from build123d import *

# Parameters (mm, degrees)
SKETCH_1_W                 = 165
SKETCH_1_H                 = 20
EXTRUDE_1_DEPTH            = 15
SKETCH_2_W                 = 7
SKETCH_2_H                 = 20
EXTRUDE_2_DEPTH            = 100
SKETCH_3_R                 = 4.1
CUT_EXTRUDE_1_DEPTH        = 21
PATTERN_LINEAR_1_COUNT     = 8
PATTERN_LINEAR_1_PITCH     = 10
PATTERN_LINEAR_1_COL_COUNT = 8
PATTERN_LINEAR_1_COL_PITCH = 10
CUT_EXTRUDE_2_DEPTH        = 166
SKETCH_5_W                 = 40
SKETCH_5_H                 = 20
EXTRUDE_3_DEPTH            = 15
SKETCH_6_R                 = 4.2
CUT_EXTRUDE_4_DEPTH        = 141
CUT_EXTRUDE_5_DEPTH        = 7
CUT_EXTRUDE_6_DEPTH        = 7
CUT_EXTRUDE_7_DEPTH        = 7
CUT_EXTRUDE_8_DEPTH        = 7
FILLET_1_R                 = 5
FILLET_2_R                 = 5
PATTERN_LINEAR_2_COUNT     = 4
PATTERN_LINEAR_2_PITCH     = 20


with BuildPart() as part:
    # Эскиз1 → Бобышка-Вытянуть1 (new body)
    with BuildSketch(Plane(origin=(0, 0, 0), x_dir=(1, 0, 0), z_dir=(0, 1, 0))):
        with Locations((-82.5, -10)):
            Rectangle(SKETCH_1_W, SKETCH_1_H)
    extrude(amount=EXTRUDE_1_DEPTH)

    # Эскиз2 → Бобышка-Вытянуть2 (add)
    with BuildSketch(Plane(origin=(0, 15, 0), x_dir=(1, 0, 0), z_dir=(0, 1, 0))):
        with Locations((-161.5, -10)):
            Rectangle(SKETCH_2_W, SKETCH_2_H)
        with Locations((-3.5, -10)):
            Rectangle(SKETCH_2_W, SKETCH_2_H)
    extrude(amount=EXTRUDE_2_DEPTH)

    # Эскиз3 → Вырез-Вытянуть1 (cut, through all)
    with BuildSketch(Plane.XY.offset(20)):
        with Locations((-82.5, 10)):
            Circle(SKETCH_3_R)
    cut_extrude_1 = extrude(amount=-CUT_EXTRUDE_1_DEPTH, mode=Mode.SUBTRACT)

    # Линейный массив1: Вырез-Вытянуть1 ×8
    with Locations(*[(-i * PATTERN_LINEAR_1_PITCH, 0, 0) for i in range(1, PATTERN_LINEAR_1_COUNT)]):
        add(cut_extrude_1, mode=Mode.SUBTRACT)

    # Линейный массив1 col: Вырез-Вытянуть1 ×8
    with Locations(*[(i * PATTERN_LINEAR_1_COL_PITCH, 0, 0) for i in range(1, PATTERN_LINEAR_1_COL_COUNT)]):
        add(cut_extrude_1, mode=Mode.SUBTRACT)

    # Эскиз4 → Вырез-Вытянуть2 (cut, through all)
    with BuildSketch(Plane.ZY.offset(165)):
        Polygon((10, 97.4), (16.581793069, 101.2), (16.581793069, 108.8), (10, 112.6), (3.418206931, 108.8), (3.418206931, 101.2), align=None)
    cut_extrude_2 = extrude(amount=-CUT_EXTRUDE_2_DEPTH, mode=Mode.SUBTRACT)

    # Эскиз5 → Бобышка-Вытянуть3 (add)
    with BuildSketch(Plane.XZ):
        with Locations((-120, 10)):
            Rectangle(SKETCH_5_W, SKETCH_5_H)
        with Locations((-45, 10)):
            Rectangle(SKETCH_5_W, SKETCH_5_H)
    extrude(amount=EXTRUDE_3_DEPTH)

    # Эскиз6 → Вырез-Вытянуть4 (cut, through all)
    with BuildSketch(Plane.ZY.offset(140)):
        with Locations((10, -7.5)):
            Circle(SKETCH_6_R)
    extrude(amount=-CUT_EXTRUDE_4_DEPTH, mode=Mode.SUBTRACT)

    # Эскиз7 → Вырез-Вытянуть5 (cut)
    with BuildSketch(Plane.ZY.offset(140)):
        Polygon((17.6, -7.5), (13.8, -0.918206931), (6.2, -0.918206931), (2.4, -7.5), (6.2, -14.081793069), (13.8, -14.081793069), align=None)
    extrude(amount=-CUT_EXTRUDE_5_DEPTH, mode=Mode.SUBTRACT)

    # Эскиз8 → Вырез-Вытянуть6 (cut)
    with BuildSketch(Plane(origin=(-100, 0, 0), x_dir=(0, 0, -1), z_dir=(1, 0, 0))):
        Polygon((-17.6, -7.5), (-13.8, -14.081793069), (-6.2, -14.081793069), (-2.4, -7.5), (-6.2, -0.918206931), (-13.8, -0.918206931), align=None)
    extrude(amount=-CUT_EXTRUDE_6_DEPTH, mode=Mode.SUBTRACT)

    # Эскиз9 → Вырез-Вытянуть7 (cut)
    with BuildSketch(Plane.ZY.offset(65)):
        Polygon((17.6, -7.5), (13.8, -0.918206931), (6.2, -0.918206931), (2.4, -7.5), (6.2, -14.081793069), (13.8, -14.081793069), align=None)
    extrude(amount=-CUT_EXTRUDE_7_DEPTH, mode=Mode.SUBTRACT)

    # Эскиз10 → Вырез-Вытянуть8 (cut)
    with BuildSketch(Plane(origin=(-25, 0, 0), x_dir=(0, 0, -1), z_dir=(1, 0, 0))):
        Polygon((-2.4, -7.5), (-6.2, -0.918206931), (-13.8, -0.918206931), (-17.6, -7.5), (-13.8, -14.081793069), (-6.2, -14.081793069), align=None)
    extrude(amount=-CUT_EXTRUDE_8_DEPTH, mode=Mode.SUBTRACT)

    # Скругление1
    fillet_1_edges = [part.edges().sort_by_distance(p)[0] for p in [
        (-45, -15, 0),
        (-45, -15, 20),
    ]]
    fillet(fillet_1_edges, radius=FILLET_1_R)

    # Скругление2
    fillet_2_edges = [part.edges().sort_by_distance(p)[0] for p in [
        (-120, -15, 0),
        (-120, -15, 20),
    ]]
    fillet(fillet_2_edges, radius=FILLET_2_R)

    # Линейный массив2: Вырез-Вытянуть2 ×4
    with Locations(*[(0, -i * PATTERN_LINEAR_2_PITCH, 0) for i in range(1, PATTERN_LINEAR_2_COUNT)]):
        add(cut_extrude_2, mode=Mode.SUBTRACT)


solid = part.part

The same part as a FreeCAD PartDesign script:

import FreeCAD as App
import Part
import Sketcher
Q = App.Units.Quantity


def edges_at(feature, points):
    """Names of the edges that pass closest to the given points."""
    edges = feature.Shape.Edges
    near = lambda p: min(range(len(edges)), key=lambda i: edges[i].distToShape(Part.Vertex(*p))[0])
    return sorted({f"Edge{near(p) + 1}" for p in points})

doc = App.newDocument("Part")
params = doc.addObject("Spreadsheet::Sheet", "Params")
for row, (alias, value) in enumerate([
    ("sketch1_width", "165 mm"),
    ("sketch1_height", "20 mm"),
    ("pad1_length", "15 mm"),
    ("sketch2_width", "7 mm"),
    ("sketch2_height", "20 mm"),
    ("pad2_length", "100 mm"),
    ("sketch3_diameter", "8.2 mm"),
    ("linearpattern_pitch", "10 mm"),
    ("linearpattern2_pitch", "10 mm"),
    ("sketch4_width", "7.6 mm"),
    ("sketch4_length", "7.6 mm"),
    ("sketch5_width", "40 mm"),
    ("sketch5_height", "20 mm"),
    ("pad3_length", "15 mm"),
    ("sketch6_diameter", "8.4 mm"),
    ("sketch7_height", "7.6 mm"),
    ("sketch7_length", "7.6 mm"),
    ("pocket4_length", "7 mm"),
    ("sketch8_height", "7.6 mm"),
    ("sketch8_length", "7.6 mm"),
    ("pocket5_length", "7 mm"),
    ("sketch9_height", "7.6 mm"),
    ("sketch9_length", "7.6 mm"),
    ("pocket6_length", "7 mm"),
    ("sketch10_height", "7.6 mm"),
    ("sketch10_length", "7.6 mm"),
    ("pocket7_length", "7 mm"),
    ("fillet_radius", "5 mm"),
    ("fillet2_radius", "5 mm"),
    ("linearpattern3_pitch", "20 mm"),
], start=1):
    params.set(f"A{row}", alias)
    params.set(f"B{row}", "=" + value)
    params.setAlias(f"B{row}", alias)

body = doc.addObject("PartDesign::Body", "Body")

sketch1 = body.newObject("Sketcher::SketchObject", "Sketch")
sketch1.AttachmentSupport = (doc.getObject("XZ_Plane"), [""])
sketch1.MapMode = "FlatFace"
sketch1.addGeometry(Part.LineSegment(App.Vector(-165, 0, 0), App.Vector(-165, 20, 0)), False)
sketch1.addGeometry(Part.LineSegment(App.Vector(-165, 20, 0), App.Vector(0, 20, 0)), False)
sketch1.addGeometry(Part.LineSegment(App.Vector(0, 20, 0), App.Vector(0, 0, 0)), False)
sketch1.addGeometry(Part.LineSegment(App.Vector(0, 0, 0), App.Vector(-165, 0, 0)), False)
sketch1.addConstraint(Sketcher.Constraint("Coincident", 0, 2, 1, 1))
sketch1.addConstraint(Sketcher.Constraint("Coincident", 1, 2, 2, 1))
sketch1.addConstraint(Sketcher.Constraint("Coincident", 2, 2, 3, 1))
sketch1.addConstraint(Sketcher.Constraint("Coincident", 3, 2, 0, 1))
sketch1.addConstraint(Sketcher.Constraint("Vertical", 0))
sketch1.addConstraint(Sketcher.Constraint("Horizontal", 1))
sketch1.addConstraint(Sketcher.Constraint("Vertical", 2))
sketch1.addConstraint(Sketcher.Constraint("Horizontal", 3))
sketch1.addConstraint(Sketcher.Constraint("Coincident", 2, 2, -1, 1))
sketch1.addConstraint(Sketcher.Constraint("DistanceX", 1, 1, 1, 2, Q("165 mm")))
sketch1.addConstraint(Sketcher.Constraint("DistanceY", 0, 1, 0, 2, Q("20 mm")))
sketch1.setExpression("Constraints[9]", "Params.sketch1_width")
sketch1.setExpression("Constraints[10]", "Params.sketch1_height")
pad1 = body.newObject("PartDesign::Pad", "Pad")
pad1.Profile = sketch1
pad1.setExpression("Length", "Params.pad1_length")
pad1.Reversed = True

sketch2 = body.newObject("Sketcher::SketchObject", "Sketch001")
sketch2.AttachmentSupport = (doc.getObject("XZ_Plane"), [""])
sketch2.MapMode = "FlatFace"
sketch2.AttachmentOffset = App.Placement(App.Vector(0, 0, -15), App.Rotation())
sketch2.addGeometry(Part.LineSegment(App.Vector(-165, 0, 0), App.Vector(-165, 20, 0)), False)
sketch2.addGeometry(Part.LineSegment(App.Vector(-165, 20, 0), App.Vector(-158, 20, 0)), False)
sketch2.addGeometry(Part.LineSegment(App.Vector(-158, 20, 0), App.Vector(-158, 0, 0)), False)
sketch2.addGeometry(Part.LineSegment(App.Vector(-158, 0, 0), App.Vector(-165, 0, 0)), False)
sketch2.addGeometry(Part.LineSegment(App.Vector(-7, 0, 0), App.Vector(-7, 20, 0)), False)
sketch2.addGeometry(Part.LineSegment(App.Vector(-7, 20, 0), App.Vector(0, 20, 0)), False)
sketch2.addGeometry(Part.LineSegment(App.Vector(0, 20, 0), App.Vector(0, 0, 0)), False)
sketch2.addGeometry(Part.LineSegment(App.Vector(0, 0, 0), App.Vector(-7, 0, 0)), False)
sketch2.addConstraint(Sketcher.Constraint("Coincident", 0, 2, 1, 1))
sketch2.addConstraint(Sketcher.Constraint("Coincident", 1, 2, 2, 1))
sketch2.addConstraint(Sketcher.Constraint("Coincident", 2, 2, 3, 1))
sketch2.addConstraint(Sketcher.Constraint("Coincident", 3, 2, 0, 1))
sketch2.addConstraint(Sketcher.Constraint("Coincident", 4, 2, 5, 1))
sketch2.addConstraint(Sketcher.Constraint("Coincident", 5, 2, 6, 1))
sketch2.addConstraint(Sketcher.Constraint("Coincident", 6, 2, 7, 1))
sketch2.addConstraint(Sketcher.Constraint("Coincident", 7, 2, 4, 1))
sketch2.addConstraint(Sketcher.Constraint("Vertical", 0))
sketch2.addConstraint(Sketcher.Constraint("Horizontal", 1))
sketch2.addConstraint(Sketcher.Constraint("Vertical", 2))
sketch2.addConstraint(Sketcher.Constraint("Horizontal", 3))
sketch2.addConstraint(Sketcher.Constraint("Vertical", 4))
sketch2.addConstraint(Sketcher.Constraint("Horizontal", 5))
sketch2.addConstraint(Sketcher.Constraint("Vertical", 6))
sketch2.addConstraint(Sketcher.Constraint("Horizontal", 7))
sketch2.addConstraint(Sketcher.Constraint("Coincident", 6, 2, -1, 1))
sketch2.addConstraint(Sketcher.Constraint("PointOnObject", 2, 2, -1))
sketch2.addConstraint(Sketcher.Constraint("Horizontal", 1, 2, 4, 2))
sketch2.addConstraint(Sketcher.Constraint("Equal", 3, 5))
sketch2.addConstraint(Sketcher.Constraint("DistanceX", 1, 1, 1, 2, Q("7 mm")))
sketch2.addConstraint(Sketcher.Constraint("DistanceY", 0, 1, 0, 2, Q("20 mm")))
sketch2.addConstraint(Sketcher.Constraint("DistanceX", 0, 2, -1, 1, Q("165 mm")))
sketch2.setExpression("Constraints[20]", "Params.sketch2_width")
sketch2.setExpression("Constraints[21]", "Params.sketch2_height")
pad2 = body.newObject("PartDesign::Pad", "Pad001")
pad2.Profile = sketch2
pad2.setExpression("Length", "Params.pad2_length")
pad2.Reversed = True

sketch3 = body.newObject("Sketcher::SketchObject", "Sketch002")
sketch3.AttachmentSupport = (doc.getObject("XY_Plane"), [""])
sketch3.MapMode = "FlatFace"
sketch3.AttachmentOffset = App.Placement(App.Vector(0, 0, 20), App.Rotation())
sketch3.addGeometry(Part.Circle(App.Vector(-82.5, 10, 0), App.Vector(0, 0, 1), 4.1), False)
sketch3.addConstraint(Sketcher.Constraint("Diameter", 0, Q("8.2 mm")))
sketch3.addConstraint(Sketcher.Constraint("DistanceY", -1, 1, 0, 3, Q("10 mm")))
sketch3.addConstraint(Sketcher.Constraint("DistanceX", 0, 3, -1, 1, Q("82.5 mm")))
sketch3.setExpression("Constraints[0]", "Params.sketch3_diameter")
pocket1 = body.newObject("PartDesign::Pocket", "Pocket")
pocket1.Profile = sketch3
pocket1.Type = "ThroughAll"
doc.recompute()

linearpattern = body.newObject("PartDesign::LinearPattern", "LinearPattern")
linearpattern.Originals = [pocket1]
linearpattern.Direction = (doc.getObject("X_Axis"), [""])
linearpattern.Mode = "offset"
linearpattern.setExpression("Offset", "Params.linearpattern_pitch")
linearpattern.Occurrences = 8
linearpattern.Reversed = True
body.Tip = linearpattern
doc.recompute()

linearpattern2 = body.newObject("PartDesign::LinearPattern", "LinearPattern001")
linearpattern2.Originals = [pocket1]
linearpattern2.Direction = (doc.getObject("X_Axis"), [""])
linearpattern2.Mode = "offset"
linearpattern2.setExpression("Offset", "Params.linearpattern2_pitch")
linearpattern2.Occurrences = 8
body.Tip = linearpattern2

sketch4 = body.newObject("Sketcher::SketchObject", "Sketch003")
sketch4.AttachmentSupport = (doc.getObject("YZ_Plane"), [""])
sketch4.MapMode = "FlatFace"
sketch4.AttachmentOffset = App.Placement(App.Vector(0, 0, -165), App.Rotation())
sketch4.addGeometry(Part.LineSegment(App.Vector(97, 10, 0), App.Vector(101, 17, 0)), False)
sketch4.addGeometry(Part.LineSegment(App.Vector(101, 17, 0), App.Vector(109, 17, 0)), False)
sketch4.addGeometry(Part.LineSegment(App.Vector(109, 17, 0), App.Vector(113, 10, 0)), False)
sketch4.addGeometry(Part.LineSegment(App.Vector(113, 10, 0), App.Vector(109, 3, 0)), False)
sketch4.addGeometry(Part.LineSegment(App.Vector(109, 3, 0), App.Vector(101, 3, 0)), False)
sketch4.addGeometry(Part.LineSegment(App.Vector(101, 3, 0), App.Vector(97, 10, 0)), False)
sketch4.addConstraint(Sketcher.Constraint("Coincident", 0, 2, 1, 1))
sketch4.addConstraint(Sketcher.Constraint("Coincident", 1, 2, 2, 1))
sketch4.addConstraint(Sketcher.Constraint("Coincident", 2, 2, 3, 1))
sketch4.addConstraint(Sketcher.Constraint("Coincident", 3, 2, 4, 1))
sketch4.addConstraint(Sketcher.Constraint("Coincident", 4, 2, 5, 1))
sketch4.addConstraint(Sketcher.Constraint("Coincident", 5, 2, 0, 1))
sketch4.addConstraint(Sketcher.Constraint("Horizontal", 1))
sketch4.addConstraint(Sketcher.Constraint("Horizontal", 4))
sketch4.addConstraint(Sketcher.Constraint("Parallel", 0, 3))
sketch4.addConstraint(Sketcher.Constraint("Parallel", 2, 5))
sketch4.addConstraint(Sketcher.Constraint("Horizontal", 2, 2, 5, 2))
sketch4.addConstraint(Sketcher.Constraint("Vertical", 1, 2, 3, 2))
sketch4.addConstraint(Sketcher.Constraint("Vertical", 0, 2, 4, 2))
sketch4.addConstraint(Sketcher.Constraint("Angle", 0, Q("60 deg")))
sketch4.addConstraint(Sketcher.Constraint("DistanceX", 1, 1, 1, 2, Q("7.6 mm")))
sketch4.addConstraint(Sketcher.Constraint("DistanceY", -1, 1, 2, 2, Q("10 mm")))
sketch4.addConstraint(Sketcher.Constraint("Distance", 0, Q("7.6 mm")))
sketch4.addConstraint(Sketcher.Constraint("DistanceX", -1, 1, 0, 2, Q("101.2 mm")))
sketch4.setExpression("Constraints[14]", "Params.sketch4_width")
sketch4.setExpression("Constraints[16]", "Params.sketch4_length")
pocket2 = body.newObject("PartDesign::Pocket", "Pocket001")
pocket2.Profile = sketch4
pocket2.Type = "ThroughAll"
pocket2.Reversed = True

sketch5 = body.newObject("Sketcher::SketchObject", "Sketch004")
sketch5.AttachmentSupport = (doc.getObject("XZ_Plane"), [""])
sketch5.MapMode = "FlatFace"
sketch5.addGeometry(Part.LineSegment(App.Vector(-140, 20, 0), App.Vector(-140, 0, 0)), False)
sketch5.addGeometry(Part.LineSegment(App.Vector(-140, 0, 0), App.Vector(-100, 0, 0)), False)
sketch5.addGeometry(Part.LineSegment(App.Vector(-100, 0, 0), App.Vector(-100, 20, 0)), False)
sketch5.addGeometry(Part.LineSegment(App.Vector(-100, 20, 0), App.Vector(-140, 20, 0)), False)
sketch5.addGeometry(Part.LineSegment(App.Vector(-65, 20, 0), App.Vector(-65, 0, 0)), False)
sketch5.addGeometry(Part.LineSegment(App.Vector(-65, 0, 0), App.Vector(-25, 0, 0)), False)
sketch5.addGeometry(Part.LineSegment(App.Vector(-25, 0, 0), App.Vector(-25, 20, 0)), False)
sketch5.addGeometry(Part.LineSegment(App.Vector(-25, 20, 0), App.Vector(-65, 20, 0)), False)
sketch5.addConstraint(Sketcher.Constraint("Coincident", 0, 2, 1, 1))
sketch5.addConstraint(Sketcher.Constraint("Coincident", 1, 2, 2, 1))
sketch5.addConstraint(Sketcher.Constraint("Coincident", 2, 2, 3, 1))
sketch5.addConstraint(Sketcher.Constraint("Coincident", 3, 2, 0, 1))
sketch5.addConstraint(Sketcher.Constraint("Coincident", 4, 2, 5, 1))
sketch5.addConstraint(Sketcher.Constraint("Coincident", 5, 2, 6, 1))
sketch5.addConstraint(Sketcher.Constraint("Coincident", 6, 2, 7, 1))
sketch5.addConstraint(Sketcher.Constraint("Coincident", 7, 2, 4, 1))
sketch5.addConstraint(Sketcher.Constraint("Vertical", 0))
sketch5.addConstraint(Sketcher.Constraint("Horizontal", 1))
sketch5.addConstraint(Sketcher.Constraint("Vertical", 2))
sketch5.addConstraint(Sketcher.Constraint("Horizontal", 3))
sketch5.addConstraint(Sketcher.Constraint("Vertical", 4))
sketch5.addConstraint(Sketcher.Constraint("Horizontal", 5))
sketch5.addConstraint(Sketcher.Constraint("Vertical", 6))
sketch5.addConstraint(Sketcher.Constraint("Horizontal", 7))
sketch5.addConstraint(Sketcher.Constraint("PointOnObject", 0, 2, -1))
sketch5.addConstraint(Sketcher.Constraint("PointOnObject", 4, 2, -1))
sketch5.addConstraint(Sketcher.Constraint("Horizontal", 3, 2, 6, 2))
sketch5.addConstraint(Sketcher.Constraint("Equal", 3, 5))
sketch5.addConstraint(Sketcher.Constraint("DistanceX", 1, 1, 1, 2, Q("40 mm")))
sketch5.addConstraint(Sketcher.Constraint("DistanceY", 0, 2, 0, 1, Q("20 mm")))
sketch5.addConstraint(Sketcher.Constraint("DistanceX", 0, 2, -1, 1, Q("140 mm")))
sketch5.addConstraint(Sketcher.Constraint("DistanceX", 4, 2, -1, 1, Q("65 mm")))
sketch5.setExpression("Constraints[20]", "Params.sketch5_width")
sketch5.setExpression("Constraints[21]", "Params.sketch5_height")
pad3 = body.newObject("PartDesign::Pad", "Pad002")
pad3.Profile = sketch5
pad3.setExpression("Length", "Params.pad3_length")

sketch6 = body.newObject("Sketcher::SketchObject", "Sketch005")
sketch6.AttachmentSupport = (doc.getObject("YZ_Plane"), [""])
sketch6.MapMode = "FlatFace"
sketch6.AttachmentOffset = App.Placement(App.Vector(0, 0, -140), App.Rotation())
sketch6.addGeometry(Part.Circle(App.Vector(-7.5, 10, 0), App.Vector(0, 0, 1), 4.2), False)
sketch6.addConstraint(Sketcher.Constraint("Diameter", 0, Q("8.4 mm")))
sketch6.addConstraint(Sketcher.Constraint("DistanceY", -1, 1, 0, 3, Q("10 mm")))
sketch6.addConstraint(Sketcher.Constraint("DistanceX", 0, 3, -1, 1, Q("7.5 mm")))
sketch6.setExpression("Constraints[0]", "Params.sketch6_diameter")
pocket3 = body.newObject("PartDesign::Pocket", "Pocket002")
pocket3.Profile = sketch6
pocket3.Type = "ThroughAll"
pocket3.Reversed = True

sketch7 = body.newObject("Sketcher::SketchObject", "Sketch006")
sketch7.AttachmentSupport = (doc.getObject("YZ_Plane"), [""])
sketch7.MapMode = "FlatFace"
sketch7.AttachmentOffset = App.Placement(App.Vector(0, 0, -140), App.Rotation())
sketch7.addGeometry(Part.LineSegment(App.Vector(-8, 18, 0), App.Vector(-1, 14, 0)), False)
sketch7.addGeometry(Part.LineSegment(App.Vector(-1, 14, 0), App.Vector(-1, 6, 0)), False)
sketch7.addGeometry(Part.LineSegment(App.Vector(-1, 6, 0), App.Vector(-8, 2, 0)), False)
sketch7.addGeometry(Part.LineSegment(App.Vector(-8, 2, 0), App.Vector(-14, 6, 0)), False)
sketch7.addGeometry(Part.LineSegment(App.Vector(-14, 6, 0), App.Vector(-14, 14, 0)), False)
sketch7.addGeometry(Part.LineSegment(App.Vector(-14, 14, 0), App.Vector(-8, 18, 0)), False)
sketch7.addConstraint(Sketcher.Constraint("Coincident", 0, 2, 1, 1))
sketch7.addConstraint(Sketcher.Constraint("Coincident", 1, 2, 2, 1))
sketch7.addConstraint(Sketcher.Constraint("Coincident", 2, 2, 3, 1))
sketch7.addConstraint(Sketcher.Constraint("Coincident", 3, 2, 4, 1))
sketch7.addConstraint(Sketcher.Constraint("Coincident", 4, 2, 5, 1))
sketch7.addConstraint(Sketcher.Constraint("Coincident", 5, 2, 0, 1))
sketch7.addConstraint(Sketcher.Constraint("Vertical", 1))
sketch7.addConstraint(Sketcher.Constraint("Vertical", 4))
sketch7.addConstraint(Sketcher.Constraint("Parallel", 0, 3))
sketch7.addConstraint(Sketcher.Constraint("Parallel", 2, 5))
sketch7.addConstraint(Sketcher.Constraint("Horizontal", 1, 2, 3, 2))
sketch7.addConstraint(Sketcher.Constraint("Horizontal", 0, 2, 4, 2))
sketch7.addConstraint(Sketcher.Constraint("Vertical", 2, 2, 5, 2))
sketch7.addConstraint(Sketcher.Constraint("Angle", 0, Q("-30 deg")))
sketch7.addConstraint(Sketcher.Constraint("DistanceY", 1, 2, 1, 1, Q("7.6 mm")))
sketch7.addConstraint(Sketcher.Constraint("Distance", 0, Q("7.6 mm")))
sketch7.addConstraint(Sketcher.Constraint("DistanceY", -1, 1, 0, 2, Q("13.8 mm")))
sketch7.addConstraint(Sketcher.Constraint("DistanceX", 2, 2, -1, 1, Q("7.5 mm")))
sketch7.setExpression("Constraints[14]", "Params.sketch7_height")
sketch7.setExpression("Constraints[15]", "Params.sketch7_length")
pocket4 = body.newObject("PartDesign::Pocket", "Pocket003")
pocket4.Profile = sketch7
pocket4.setExpression("Length", "Params.pocket4_length")
pocket4.Reversed = True

sketch8 = body.newObject("Sketcher::SketchObject", "Sketch007")
sketch8.AttachmentSupport = (doc.getObject("YZ_Plane"), [""])
sketch8.MapMode = "FlatFace"
sketch8.AttachmentOffset = App.Placement(App.Vector(0, 0, -100), App.Rotation())
sketch8.addGeometry(Part.LineSegment(App.Vector(-8, 18, 0), App.Vector(-14, 14, 0)), False)
sketch8.addGeometry(Part.LineSegment(App.Vector(-14, 14, 0), App.Vector(-14, 6, 0)), False)
sketch8.addGeometry(Part.LineSegment(App.Vector(-14, 6, 0), App.Vector(-8, 2, 0)), False)
sketch8.addGeometry(Part.LineSegment(App.Vector(-8, 2, 0), App.Vector(-1, 6, 0)), False)
sketch8.addGeometry(Part.LineSegment(App.Vector(-1, 6, 0), App.Vector(-1, 14, 0)), False)
sketch8.addGeometry(Part.LineSegment(App.Vector(-1, 14, 0), App.Vector(-8, 18, 0)), False)
sketch8.addConstraint(Sketcher.Constraint("Coincident", 0, 2, 1, 1))
sketch8.addConstraint(Sketcher.Constraint("Coincident", 1, 2, 2, 1))
sketch8.addConstraint(Sketcher.Constraint("Coincident", 2, 2, 3, 1))
sketch8.addConstraint(Sketcher.Constraint("Coincident", 3, 2, 4, 1))
sketch8.addConstraint(Sketcher.Constraint("Coincident", 4, 2, 5, 1))
sketch8.addConstraint(Sketcher.Constraint("Coincident", 5, 2, 0, 1))
sketch8.addConstraint(Sketcher.Constraint("Vertical", 1))
sketch8.addConstraint(Sketcher.Constraint("Vertical", 4))
sketch8.addConstraint(Sketcher.Constraint("Parallel", 0, 3))
sketch8.addConstraint(Sketcher.Constraint("Parallel", 2, 5))
sketch8.addConstraint(Sketcher.Constraint("Horizontal", 1, 2, 3, 2))
sketch8.addConstraint(Sketcher.Constraint("Horizontal", 0, 2, 4, 2))
sketch8.addConstraint(Sketcher.Constraint("Vertical", 2, 2, 5, 2))
sketch8.addConstraint(Sketcher.Constraint("Angle", 0, Q("-150 deg")))
sketch8.addConstraint(Sketcher.Constraint("DistanceY", 1, 2, 1, 1, Q("7.6 mm")))
sketch8.addConstraint(Sketcher.Constraint("Distance", 0, Q("7.6 mm")))
sketch8.addConstraint(Sketcher.Constraint("DistanceY", -1, 1, 0, 2, Q("13.8 mm")))
sketch8.addConstraint(Sketcher.Constraint("DistanceX", 2, 2, -1, 1, Q("7.5 mm")))
sketch8.setExpression("Constraints[14]", "Params.sketch8_height")
sketch8.setExpression("Constraints[15]", "Params.sketch8_length")
pocket5 = body.newObject("PartDesign::Pocket", "Pocket004")
pocket5.Profile = sketch8
pocket5.setExpression("Length", "Params.pocket5_length")

sketch9 = body.newObject("Sketcher::SketchObject", "Sketch008")
sketch9.AttachmentSupport = (doc.getObject("YZ_Plane"), [""])
sketch9.MapMode = "FlatFace"
sketch9.AttachmentOffset = App.Placement(App.Vector(0, 0, -65), App.Rotation())
sketch9.addGeometry(Part.LineSegment(App.Vector(-8, 18, 0), App.Vector(-1, 14, 0)), False)
sketch9.addGeometry(Part.LineSegment(App.Vector(-1, 14, 0), App.Vector(-1, 6, 0)), False)
sketch9.addGeometry(Part.LineSegment(App.Vector(-1, 6, 0), App.Vector(-8, 2, 0)), False)
sketch9.addGeometry(Part.LineSegment(App.Vector(-8, 2, 0), App.Vector(-14, 6, 0)), False)
sketch9.addGeometry(Part.LineSegment(App.Vector(-14, 6, 0), App.Vector(-14, 14, 0)), False)
sketch9.addGeometry(Part.LineSegment(App.Vector(-14, 14, 0), App.Vector(-8, 18, 0)), False)
sketch9.addConstraint(Sketcher.Constraint("Coincident", 0, 2, 1, 1))
sketch9.addConstraint(Sketcher.Constraint("Coincident", 1, 2, 2, 1))
sketch9.addConstraint(Sketcher.Constraint("Coincident", 2, 2, 3, 1))
sketch9.addConstraint(Sketcher.Constraint("Coincident", 3, 2, 4, 1))
sketch9.addConstraint(Sketcher.Constraint("Coincident", 4, 2, 5, 1))
sketch9.addConstraint(Sketcher.Constraint("Coincident", 5, 2, 0, 1))
sketch9.addConstraint(Sketcher.Constraint("Vertical", 1))
sketch9.addConstraint(Sketcher.Constraint("Vertical", 4))
sketch9.addConstraint(Sketcher.Constraint("Parallel", 0, 3))
sketch9.addConstraint(Sketcher.Constraint("Parallel", 2, 5))
sketch9.addConstraint(Sketcher.Constraint("Horizontal", 1, 2, 3, 2))
sketch9.addConstraint(Sketcher.Constraint("Horizontal", 0, 2, 4, 2))
sketch9.addConstraint(Sketcher.Constraint("Vertical", 2, 2, 5, 2))
sketch9.addConstraint(Sketcher.Constraint("Angle", 0, Q("-30 deg")))
sketch9.addConstraint(Sketcher.Constraint("DistanceY", 1, 2, 1, 1, Q("7.6 mm")))
sketch9.addConstraint(Sketcher.Constraint("Distance", 0, Q("7.6 mm")))
sketch9.addConstraint(Sketcher.Constraint("DistanceY", -1, 1, 0, 2, Q("13.8 mm")))
sketch9.addConstraint(Sketcher.Constraint("DistanceX", 2, 2, -1, 1, Q("7.5 mm")))
sketch9.setExpression("Constraints[14]", "Params.sketch9_height")
sketch9.setExpression("Constraints[15]", "Params.sketch9_length")
pocket6 = body.newObject("PartDesign::Pocket", "Pocket005")
pocket6.Profile = sketch9
pocket6.setExpression("Length", "Params.pocket6_length")
pocket6.Reversed = True

sketch10 = body.newObject("Sketcher::SketchObject", "Sketch009")
sketch10.AttachmentSupport = (doc.getObject("YZ_Plane"), [""])
sketch10.MapMode = "FlatFace"
sketch10.AttachmentOffset = App.Placement(App.Vector(0, 0, -25), App.Rotation())
sketch10.addGeometry(Part.LineSegment(App.Vector(-8, 2, 0), App.Vector(-1, 6, 0)), False)
sketch10.addGeometry(Part.LineSegment(App.Vector(-1, 6, 0), App.Vector(-1, 14, 0)), False)
sketch10.addGeometry(Part.LineSegment(App.Vector(-1, 14, 0), App.Vector(-8, 18, 0)), False)
sketch10.addGeometry(Part.LineSegment(App.Vector(-8, 18, 0), App.Vector(-14, 14, 0)), False)
sketch10.addGeometry(Part.LineSegment(App.Vector(-14, 14, 0), App.Vector(-14, 6, 0)), False)
sketch10.addGeometry(Part.LineSegment(App.Vector(-14, 6, 0), App.Vector(-8, 2, 0)), False)
sketch10.addConstraint(Sketcher.Constraint("Coincident", 0, 2, 1, 1))
sketch10.addConstraint(Sketcher.Constraint("Coincident", 1, 2, 2, 1))
sketch10.addConstraint(Sketcher.Constraint("Coincident", 2, 2, 3, 1))
sketch10.addConstraint(Sketcher.Constraint("Coincident", 3, 2, 4, 1))
sketch10.addConstraint(Sketcher.Constraint("Coincident", 4, 2, 5, 1))
sketch10.addConstraint(Sketcher.Constraint("Coincident", 5, 2, 0, 1))
sketch10.addConstraint(Sketcher.Constraint("Vertical", 1))
sketch10.addConstraint(Sketcher.Constraint("Vertical", 4))
sketch10.addConstraint(Sketcher.Constraint("Parallel", 0, 3))
sketch10.addConstraint(Sketcher.Constraint("Parallel", 2, 5))
sketch10.addConstraint(Sketcher.Constraint("Horizontal", 1, 2, 3, 2))
sketch10.addConstraint(Sketcher.Constraint("Horizontal", 0, 2, 4, 2))
sketch10.addConstraint(Sketcher.Constraint("Vertical", 2, 2, 5, 2))
sketch10.addConstraint(Sketcher.Constraint("Angle", 0, Q("30 deg")))
sketch10.addConstraint(Sketcher.Constraint("DistanceY", 1, 1, 1, 2, Q("7.6 mm")))
sketch10.addConstraint(Sketcher.Constraint("Distance", 0, Q("7.6 mm")))
sketch10.addConstraint(Sketcher.Constraint("DistanceY", -1, 1, 0, 2, Q("6.2 mm")))
sketch10.addConstraint(Sketcher.Constraint("DistanceX", 2, 2, -1, 1, Q("7.5 mm")))
sketch10.setExpression("Constraints[14]", "Params.sketch10_height")
sketch10.setExpression("Constraints[15]", "Params.sketch10_length")
pocket7 = body.newObject("PartDesign::Pocket", "Pocket006")
pocket7.Profile = sketch10
pocket7.setExpression("Length", "Params.pocket7_length")
doc.recompute()

fillet = body.newObject("PartDesign::Fillet", "Fillet")
fillet.Base = (pocket7, edges_at(pocket7, [(-45, -15, 0), (-45, -15, 20)]))
fillet.setExpression("Radius", "Params.fillet_radius")
doc.recompute()

fillet2 = body.newObject("PartDesign::Fillet", "Fillet001")
fillet2.Base = (fillet, edges_at(fillet, [(-120, -15, 0), (-120, -15, 20)]))
fillet2.setExpression("Radius", "Params.fillet2_radius")
doc.recompute()

linearpattern3 = body.newObject("PartDesign::LinearPattern", "LinearPattern002")
linearpattern3.Originals = [pocket2]
linearpattern3.Direction = (doc.getObject("Y_Axis"), [""])
linearpattern3.Mode = "offset"
linearpattern3.setExpression("Offset", "Params.linearpattern3_pitch")
linearpattern3.Occurrences = 4
linearpattern3.Reversed = True
body.Tip = linearpattern3

doc.recompute()
